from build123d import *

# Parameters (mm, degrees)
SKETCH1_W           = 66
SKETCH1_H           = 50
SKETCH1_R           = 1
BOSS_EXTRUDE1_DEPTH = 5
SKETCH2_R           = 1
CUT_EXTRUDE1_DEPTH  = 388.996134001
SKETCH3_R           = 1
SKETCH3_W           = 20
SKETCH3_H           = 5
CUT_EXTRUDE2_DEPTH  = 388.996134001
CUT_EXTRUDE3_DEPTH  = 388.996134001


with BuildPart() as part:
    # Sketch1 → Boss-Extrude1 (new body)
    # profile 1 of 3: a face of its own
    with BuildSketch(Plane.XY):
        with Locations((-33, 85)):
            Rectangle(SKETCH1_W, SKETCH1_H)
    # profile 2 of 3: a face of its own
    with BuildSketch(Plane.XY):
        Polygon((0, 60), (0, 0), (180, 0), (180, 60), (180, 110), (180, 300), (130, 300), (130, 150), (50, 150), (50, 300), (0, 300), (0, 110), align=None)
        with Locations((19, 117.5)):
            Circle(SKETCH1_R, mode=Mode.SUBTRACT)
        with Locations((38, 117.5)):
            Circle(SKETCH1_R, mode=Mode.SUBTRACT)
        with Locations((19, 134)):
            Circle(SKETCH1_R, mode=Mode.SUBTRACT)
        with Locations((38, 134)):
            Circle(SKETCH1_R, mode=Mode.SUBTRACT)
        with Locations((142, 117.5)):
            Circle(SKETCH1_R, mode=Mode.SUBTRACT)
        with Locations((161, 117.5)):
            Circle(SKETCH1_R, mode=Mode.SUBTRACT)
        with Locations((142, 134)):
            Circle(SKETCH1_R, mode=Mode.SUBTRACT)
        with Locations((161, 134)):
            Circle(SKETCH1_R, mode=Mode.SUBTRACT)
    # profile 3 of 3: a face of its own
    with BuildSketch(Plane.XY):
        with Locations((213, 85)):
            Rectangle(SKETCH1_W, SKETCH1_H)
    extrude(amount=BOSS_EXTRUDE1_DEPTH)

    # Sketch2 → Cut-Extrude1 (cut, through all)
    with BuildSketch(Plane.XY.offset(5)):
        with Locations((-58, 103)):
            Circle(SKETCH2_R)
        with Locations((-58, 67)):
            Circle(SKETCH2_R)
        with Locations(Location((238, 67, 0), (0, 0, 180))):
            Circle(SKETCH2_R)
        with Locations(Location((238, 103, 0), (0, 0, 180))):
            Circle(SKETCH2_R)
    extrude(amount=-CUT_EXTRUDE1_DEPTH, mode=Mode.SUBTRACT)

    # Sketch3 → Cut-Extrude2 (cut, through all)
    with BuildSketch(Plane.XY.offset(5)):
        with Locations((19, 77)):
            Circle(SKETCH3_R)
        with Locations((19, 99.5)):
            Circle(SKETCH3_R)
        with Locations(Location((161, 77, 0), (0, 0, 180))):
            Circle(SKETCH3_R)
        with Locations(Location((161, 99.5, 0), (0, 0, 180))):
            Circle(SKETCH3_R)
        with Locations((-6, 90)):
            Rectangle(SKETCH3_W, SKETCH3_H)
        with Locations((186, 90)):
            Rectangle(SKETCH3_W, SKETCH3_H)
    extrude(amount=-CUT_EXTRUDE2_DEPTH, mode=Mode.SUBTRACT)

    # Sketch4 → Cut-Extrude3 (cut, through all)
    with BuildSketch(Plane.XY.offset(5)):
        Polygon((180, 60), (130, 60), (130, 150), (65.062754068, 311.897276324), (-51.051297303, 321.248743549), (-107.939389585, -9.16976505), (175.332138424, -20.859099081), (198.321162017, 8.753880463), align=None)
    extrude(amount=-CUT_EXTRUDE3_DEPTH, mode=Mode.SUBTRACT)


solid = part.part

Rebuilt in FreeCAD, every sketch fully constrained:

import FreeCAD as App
import Part
import Sketcher
from FreeCAD import Vector


def add_polygon(sketch, points):
    """Adds a closed chain of lines whose ends are joined by coincident constraints."""
    first, n = sketch.GeometryCount, len(points)
    for a, b in zip(points, points[1:] + points[:1]):
        sketch.addGeometry(Part.LineSegment(App.Vector(*a, 0), App.Vector(*b, 0)), False)
    for i in range(n):
        sketch.addConstraint(Sketcher.Constraint("Coincident", first + i, 2, first + (i + 1) % n, 1))

doc = App.newDocument("Part")
body = doc.addObject("PartDesign::Body", "Body")

sketch1 = doc.addObject("Sketcher::SketchObject", "Sketch")
body.addObject(sketch1)
sketch1.AttachmentSupport = (doc.XY_Plane, [""])
sketch1.MapMode = "FlatFace"
add_polygon(sketch1, [(-66, 110), (-66, 60), (0, 60), (0, 0), (180, 0), (180, 60), (246, 60), (246, 110), (180, 110), (180, 300), (130, 300), (130, 150), (50, 150), (50, 300), (0, 300), (0, 110)])
sketch1.addGeometry(Part.Circle(Vector(161, 134, 0), Vector(0, 0, 1), 1), False)
sketch1.addGeometry(Part.Circle(Vector(19, 117.5, 0), Vector(0, 0, 1), 1), False)
sketch1.addGeometry(Part.Circle(Vector(38, 117.5, 0), Vector(0, 0, 1), 1), False)
sketch1.addGeometry(Part.Circle(Vector(142, 117.5, 0), Vector(0, 0, 1), 1), False)
sketch1.addGeometry(Part.Circle(Vector(161, 117.5, 0), Vector(0, 0, 1), 1), False)
sketch1.addGeometry(Part.Circle(Vector(19, 134, 0), Vector(0, 0, 1), 1), False)
sketch1.addGeometry(Part.Circle(Vector(38, 134, 0), Vector(0, 0, 1), 1), False)
sketch1.addGeometry(Part.Circle(Vector(142, 134, 0), Vector(0, 0, 1), 1), False)
sketch1.addConstraint(Sketcher.Constraint("Vertical", 0))
sketch1.addConstraint(Sketcher.Constraint("Horizontal", 1))
sketch1.addConstraint(Sketcher.Constraint("Vertical", 2))
sketch1.addConstraint(Sketcher.Constraint("Horizontal", 3))
sketch1.addConstraint(Sketcher.Constraint("Vertical", 4))
sketch1.addConstraint(Sketcher.Constraint("Horizontal", 5))
sketch1.addConstraint(Sketcher.Constraint("Vertical", 6))
sketch1.addConstraint(Sketcher.Constraint("Horizontal", 7))
sketch1.addConstraint(Sketcher.Constraint("Vertical", 8))
sketch1.addConstraint(Sketcher.Constraint("Horizontal", 9))
sketch1.addConstraint(Sketcher.Constraint("Vertical", 10))
sketch1.addConstraint(Sketcher.Constraint("Horizontal", 11))
sketch1.addConstraint(Sketcher.Constraint("Vertical", 12))
sketch1.addConstraint(Sketcher.Constraint("Horizontal", 13))
sketch1.addConstraint(Sketcher.Constraint("Vertical", 14))
sketch1.addConstraint(Sketcher.Constraint("Horizontal", 15))
sketch1.addConstraint(Sketcher.Constraint("Coincident", 2, 2, -1, 1))
sketch1.addConstraint(Sketcher.Constraint("Equal", 16, 17))
sketch1.addConstraint(Sketcher.Constraint("Equal", 17, 18))
sketch1.addConstraint(Sketcher.Constraint("Equal", 18, 19))
sketch1.addConstraint(Sketcher.Constraint("Equal", 19, 20))
sketch1.addConstraint(Sketcher.Constraint("Equal", 20, 21))
sketch1.addConstraint(Sketcher.Constraint("Equal", 21, 22))
sketch1.addConstraint(Sketcher.Constraint("Equal", 22, 23))
sketch1.addConstraint(Sketcher.Constraint("PointOnObject", 13, 2, -2))
sketch1.addConstraint(Sketcher.Constraint("Horizontal", 17, 3, 18, 3))
sketch1.addConstraint(Sketcher.Constraint("Horizontal", 18, 3, 19, 3))
sketch1.addConstraint(Sketcher.Constraint("Horizontal", 19, 3, 20, 3))
sketch1.addConstraint(Sketcher.Constraint("Horizontal", 16, 3, 21, 3))
sketch1.addConstraint(Sketcher.Constraint("Horizontal", 21, 3, 22, 3))
sketch1.addConstraint(Sketcher.Constraint("Horizontal", 22, 3, 23, 3))
sketch1.addConstraint(Sketcher.Constraint("Horizontal", 1, 2, 4, 2))
sketch1.addConstraint(Sketcher.Constraint("Horizontal", 9, 2, 12, 2))
sketch1.addConstraint(Sketcher.Constraint("Horizontal", 7, 2, 14, 2))
sketch1.addConstraint(Sketcher.Constraint("Vertical", 16, 3, 20, 3))
sketch1.addConstraint(Sketcher.Constraint("Vertical", 17, 3, 21, 3))
sketch1.addConstraint(Sketcher.Constraint("Vertical", 18, 3, 22, 3))
sketch1.addConstraint(Sketcher.Constraint("Vertical", 19, 3, 23, 3))
sketch1.addConstraint(Sketcher.Constraint("Vertical", 4, 2, 7, 2))
sketch1.addConstraint(Sketcher.Constraint("Equal", 1, 5))
sketch1.addConstraint(Sketcher.Constraint("Equal", 9, 13))
sketch1.addConstraint(Sketcher.Constraint("Equal", 13, 0))
sketch1.addConstraint(Sketcher.Constraint("Diameter", 16, 2.0))
sketch1.addConstraint(Sketcher.Constraint("DistanceX", 1, 1, 1, 2, 66.0))
sketch1.addConstraint(Sketcher.Constraint("DistanceX", 3, 1, 3, 2, 180.0))
sketch1.addConstraint(Sketcher.Constraint("DistanceX", 9, 2, 9, 1, 50.0))
sketch1.addConstraint(Sketcher.Constraint("DistanceY", 2, 2, 2, 1, 60.0))
sketch1.addConstraint(Sketcher.Constraint("DistanceY", 8, 1, 8, 2, 190.0))
sketch1.addConstraint(Sketcher.Constraint("DistanceY", 10, 2, 10, 1, 150.0))
sketch1.addConstraint(Sketcher.Constraint("DistanceX", -1, 1, 16, 3, 161.0))
sketch1.addConstraint(Sketcher.Constraint("DistanceY", -1, 1, 16, 3, 134.0))
sketch1.addConstraint(Sketcher.Constraint("DistanceX", -1, 1, 17, 3, 19.0))
sketch1.addConstraint(Sketcher.Constraint("DistanceX", -1, 1, 18, 3, 38.0))
sketch1.addConstraint(Sketcher.Constraint("DistanceX", -1, 1, 19, 3, 142.0))
sketch1.addConstraint(Sketcher.Constraint("DistanceY", -1, 1, 17, 3, 117.5))
pad1 = doc.addObject("PartDesign::Pad", "Pad")
body.addObject(pad1)
pad1.Profile = sketch1
pad1.Length = 5

sketch2 = doc.addObject("Sketcher::SketchObject", "Sketch001")
body.addObject(sketch2)
sketch2.AttachmentSupport = (doc.XY_Plane, [""])
sketch2.MapMode = "FlatFace"
sketch2.AttachmentOffset = App.Placement(Vector(0, 0, 5), App.Rotation())
sketch2.addGeometry(Part.Circle(Vector(-58, 103, 0), Vector(0, 0, 1), 1), False)
sketch2.addGeometry(Part.Circle(Vector(-58, 67, 0), Vector(0, 0, 1), 1), False)
sketch2.addGeometry(Part.Circle(Vector(238, 67, 0), Vector(0, 0, 1), 1), False)
sketch2.addGeometry(Part.Circle(Vector(238, 103, 0), Vector(0, 0, 1), 1), False)
sketch2.addConstraint(Sketcher.Constraint("Equal", 0, 1))
sketch2.addConstraint(Sketcher.Constraint("Equal", 1, 2))
sketch2.addConstraint(Sketcher.Constraint("Equal", 2, 3))
sketch2.addConstraint(Sketcher.Constraint("Horizontal", 1, 3, 2, 3))
sketch2.addConstraint(Sketcher.Constraint("Horizontal", 0, 3, 3, 3))
sketch2.addConstraint(Sketcher.Constraint("Vertical", 0, 3, 1, 3))
sketch2.addConstraint(Sketcher.Constraint("Vertical", 2, 3, 3, 3))
sketch2.addConstraint(Sketcher.Constraint("Diameter", 0, 2.0))
sketch2.addConstraint(Sketcher.Constraint("DistanceX", 0, 3, -1, 1, 58.0))
sketch2.addConstraint(Sketcher.Constraint("DistanceY", -1, 1, 0, 3, 103.0))
sketch2.addConstraint(Sketcher.Constraint("DistanceY", -1, 1, 1, 3, 67.0))
sketch2.addConstraint(Sketcher.Constraint("DistanceX", -1, 1, 2, 3, 238.0))
pocket1 = doc.addObject("PartDesign::Pocket", "Pocket")
body.addObject(pocket1)
pocket1.Profile = sketch2
pocket1.Type = "ThroughAll"

sketch3 = doc.addObject("Sketcher::SketchObject", "Sketch002")
body.addObject(sketch3)
sketch3.AttachmentSupport = (doc.XY_Plane, [""])
sketch3.MapMode = "FlatFace"
sketch3.AttachmentOffset = App.Placement(Vector(0, 0, 5), App.Rotation())
sketch3.addGeometry(Part.Circle(Vector(19, 77, 0), Vector(0, 0, 1), 1), False)
sketch3.addGeometry(Part.Circle(Vector(19, 99.5, 0), Vector(0, 0, 1), 1), False)
sketch3.addGeometry(Part.Circle(Vector(161, 77, 0), Vector(0, 0, 1), 1), False)
sketch3.addGeometry(Part.Circle(Vector(161, 99.5, 0), Vector(0, 0, 1), 1), False)
add_polygon(sketch3, [(-16, 92.5), (-16, 87.5), (4, 87.5), (4, 92.5)])
add_polygon(sketch3, [(176, 92.5), (176, 87.5), (196, 87.5), (196, 92.5)])
sketch3.addConstraint(Sketcher.Constraint("Vertical", 4))
sketch3.addConstraint(Sketcher.Constraint("Horizontal", 5))
sketch3.addConstraint(Sketcher.Constraint("Vertical", 6))
sketch3.addConstraint(Sketcher.Constraint("Horizontal", 7))
sketch3.addConstraint(Sketcher.Constraint("Vertical", 8))
sketch3.addConstraint(Sketcher.Constraint("Horizontal", 9))
sketch3.addConstraint(Sketcher.Constraint("Vertical", 10))
sketch3.addConstraint(Sketcher.Constraint("Horizontal", 11))
sketch3.addConstraint(Sketcher.Constraint("Equal", 0, 1))
sketch3.addConstraint(Sketcher.Constraint("Equal", 1, 2))
sketch3.addConstraint(Sketcher.Constraint("Equal", 2, 3))
sketch3.addConstraint(Sketcher.Constraint("Horizontal", 0, 3, 2, 3))
sketch3.addConstraint(Sketcher.Constraint("Horizontal", 1, 3, 3, 3))
sketch3.addConstraint(Sketcher.Constraint("Horizontal", 5, 2, 8, 2))
sketch3.addConstraint(Sketcher.Constraint("Horizontal", 7, 2, 10, 2))
sketch3.addConstraint(Sketcher.Constraint("Vertical", 0, 3, 1, 3))
sketch3.addConstraint(Sketcher.Constraint("Vertical", 2, 3, 3, 3))
sketch3.addConstraint(Sketcher.Constraint("Equal", 7, 9))
sketch3.addConstraint(Sketcher.Constraint("Diameter", 0, 2.0))
sketch3.addConstraint(Sketcher.Constraint("DistanceX", 5, 1, 5, 2, 20.0))
sketch3.addConstraint(Sketcher.Constraint("DistanceY", 4, 2, 4, 1, 5.0))
sketch3.addConstraint(Sketcher.Constraint("DistanceX", -1, 1, 0, 3, 19.0))
sketch3.addConstraint(Sketcher.Constraint("DistanceY", -1, 1, 0, 3, 77.0))
sketch3.addConstraint(Sketcher.Constraint("DistanceX", -1, 1, 2, 3, 161.0))
sketch3.addConstraint(Sketcher.Constraint("DistanceX", 4, 2, -1, 1, 16.0))
sketch3.addConstraint(Sketcher.Constraint("DistanceX", -1, 1, 8, 2, 176.0))
sketch3.addConstraint(Sketcher.Constraint("DistanceY", 4, 2, 1, 3, 12.0))
sketch3.addConstraint(Sketcher.Constraint("DistanceY", -1, 1, 1, 3, 99.5))
pocket2 = doc.addObject("PartDesign::Pocket", "Pocket001")
body.addObject(pocket2)
pocket2.Profile = sketch3
pocket2.Type = "ThroughAll"

sketch4 = doc.addObject("Sketcher::SketchObject", "Sketch003")
body.addObject(sketch4)
sketch4.AttachmentSupport = (doc.XY_Plane, [""])
sketch4.MapMode = "FlatFace"
sketch4.AttachmentOffset = App.Placement(Vector(0, 0, 5), App.Rotation())
add_polygon(sketch4, [(180, 60), (130, 60), (130, 150), (65.062754, 311.897276), (-51.051297, 321.248744), (-107.93939, -9.169765), (175.332138, -20.859099), (198.321162, 8.75388)])
sketch4.addConstraint(Sketcher.Constraint("Horizontal", 0))
sketch4.addConstraint(Sketcher.Constraint("Vertical", 1))
sketch4.addConstraint(Sketcher.Constraint("DistanceX", 0, 2, 0, 1, 50.0))
sketch4.addConstraint(Sketcher.Constraint("DistanceY", 1, 1, 1, 2, 90.0))
sketch4.addConstraint(Sketcher.Constraint("DistanceX", -1, 1, 0, 2, 130.0))
sketch4.addConstraint(Sketcher.Constraint("DistanceY", -1, 1, 0, 2, 60.0))
sketch4.addConstraint(Sketcher.Constraint("DistanceY", 5, 2, -1, 1, 20.859099))
sketch4.addConstraint(Sketcher.Constraint("Distance", 3, 116.490012))
sketch4.addConstraint(Sketcher.Constraint("Distance", 4, 335.279951))
sketch4.addConstraint(Sketcher.Constraint("Distance", 5, 283.512608))
sketch4.addConstraint(Sketcher.Constraint("Distance", 6, 37.488982))
sketch4.addConstraint(Sketcher.Constraint("DistanceX", 4, 2, -1, 1, 107.93939))
sketch4.addConstraint(Sketcher.Constraint("DistanceX", -1, 1, 5, 2, 175.332138))
sketch4.addConstraint(Sketcher.Constraint("DistanceY", -1, 1, 6, 2, 8.75388))
sketch4.addConstraint(Sketcher.Constraint("DistanceX", 3, 2, 2, 2, 116.114051))
sketch4.addConstraint(Sketcher.Constraint("DistanceY", 4, 2, 3, 2, 330.418509))
pocket3 = doc.addObject("PartDesign::Pocket", "Pocket002")
body.addObject(pocket3)
pocket3.Profile = sketch4
pocket3.Type = "ThroughAll"

doc.recompute()
